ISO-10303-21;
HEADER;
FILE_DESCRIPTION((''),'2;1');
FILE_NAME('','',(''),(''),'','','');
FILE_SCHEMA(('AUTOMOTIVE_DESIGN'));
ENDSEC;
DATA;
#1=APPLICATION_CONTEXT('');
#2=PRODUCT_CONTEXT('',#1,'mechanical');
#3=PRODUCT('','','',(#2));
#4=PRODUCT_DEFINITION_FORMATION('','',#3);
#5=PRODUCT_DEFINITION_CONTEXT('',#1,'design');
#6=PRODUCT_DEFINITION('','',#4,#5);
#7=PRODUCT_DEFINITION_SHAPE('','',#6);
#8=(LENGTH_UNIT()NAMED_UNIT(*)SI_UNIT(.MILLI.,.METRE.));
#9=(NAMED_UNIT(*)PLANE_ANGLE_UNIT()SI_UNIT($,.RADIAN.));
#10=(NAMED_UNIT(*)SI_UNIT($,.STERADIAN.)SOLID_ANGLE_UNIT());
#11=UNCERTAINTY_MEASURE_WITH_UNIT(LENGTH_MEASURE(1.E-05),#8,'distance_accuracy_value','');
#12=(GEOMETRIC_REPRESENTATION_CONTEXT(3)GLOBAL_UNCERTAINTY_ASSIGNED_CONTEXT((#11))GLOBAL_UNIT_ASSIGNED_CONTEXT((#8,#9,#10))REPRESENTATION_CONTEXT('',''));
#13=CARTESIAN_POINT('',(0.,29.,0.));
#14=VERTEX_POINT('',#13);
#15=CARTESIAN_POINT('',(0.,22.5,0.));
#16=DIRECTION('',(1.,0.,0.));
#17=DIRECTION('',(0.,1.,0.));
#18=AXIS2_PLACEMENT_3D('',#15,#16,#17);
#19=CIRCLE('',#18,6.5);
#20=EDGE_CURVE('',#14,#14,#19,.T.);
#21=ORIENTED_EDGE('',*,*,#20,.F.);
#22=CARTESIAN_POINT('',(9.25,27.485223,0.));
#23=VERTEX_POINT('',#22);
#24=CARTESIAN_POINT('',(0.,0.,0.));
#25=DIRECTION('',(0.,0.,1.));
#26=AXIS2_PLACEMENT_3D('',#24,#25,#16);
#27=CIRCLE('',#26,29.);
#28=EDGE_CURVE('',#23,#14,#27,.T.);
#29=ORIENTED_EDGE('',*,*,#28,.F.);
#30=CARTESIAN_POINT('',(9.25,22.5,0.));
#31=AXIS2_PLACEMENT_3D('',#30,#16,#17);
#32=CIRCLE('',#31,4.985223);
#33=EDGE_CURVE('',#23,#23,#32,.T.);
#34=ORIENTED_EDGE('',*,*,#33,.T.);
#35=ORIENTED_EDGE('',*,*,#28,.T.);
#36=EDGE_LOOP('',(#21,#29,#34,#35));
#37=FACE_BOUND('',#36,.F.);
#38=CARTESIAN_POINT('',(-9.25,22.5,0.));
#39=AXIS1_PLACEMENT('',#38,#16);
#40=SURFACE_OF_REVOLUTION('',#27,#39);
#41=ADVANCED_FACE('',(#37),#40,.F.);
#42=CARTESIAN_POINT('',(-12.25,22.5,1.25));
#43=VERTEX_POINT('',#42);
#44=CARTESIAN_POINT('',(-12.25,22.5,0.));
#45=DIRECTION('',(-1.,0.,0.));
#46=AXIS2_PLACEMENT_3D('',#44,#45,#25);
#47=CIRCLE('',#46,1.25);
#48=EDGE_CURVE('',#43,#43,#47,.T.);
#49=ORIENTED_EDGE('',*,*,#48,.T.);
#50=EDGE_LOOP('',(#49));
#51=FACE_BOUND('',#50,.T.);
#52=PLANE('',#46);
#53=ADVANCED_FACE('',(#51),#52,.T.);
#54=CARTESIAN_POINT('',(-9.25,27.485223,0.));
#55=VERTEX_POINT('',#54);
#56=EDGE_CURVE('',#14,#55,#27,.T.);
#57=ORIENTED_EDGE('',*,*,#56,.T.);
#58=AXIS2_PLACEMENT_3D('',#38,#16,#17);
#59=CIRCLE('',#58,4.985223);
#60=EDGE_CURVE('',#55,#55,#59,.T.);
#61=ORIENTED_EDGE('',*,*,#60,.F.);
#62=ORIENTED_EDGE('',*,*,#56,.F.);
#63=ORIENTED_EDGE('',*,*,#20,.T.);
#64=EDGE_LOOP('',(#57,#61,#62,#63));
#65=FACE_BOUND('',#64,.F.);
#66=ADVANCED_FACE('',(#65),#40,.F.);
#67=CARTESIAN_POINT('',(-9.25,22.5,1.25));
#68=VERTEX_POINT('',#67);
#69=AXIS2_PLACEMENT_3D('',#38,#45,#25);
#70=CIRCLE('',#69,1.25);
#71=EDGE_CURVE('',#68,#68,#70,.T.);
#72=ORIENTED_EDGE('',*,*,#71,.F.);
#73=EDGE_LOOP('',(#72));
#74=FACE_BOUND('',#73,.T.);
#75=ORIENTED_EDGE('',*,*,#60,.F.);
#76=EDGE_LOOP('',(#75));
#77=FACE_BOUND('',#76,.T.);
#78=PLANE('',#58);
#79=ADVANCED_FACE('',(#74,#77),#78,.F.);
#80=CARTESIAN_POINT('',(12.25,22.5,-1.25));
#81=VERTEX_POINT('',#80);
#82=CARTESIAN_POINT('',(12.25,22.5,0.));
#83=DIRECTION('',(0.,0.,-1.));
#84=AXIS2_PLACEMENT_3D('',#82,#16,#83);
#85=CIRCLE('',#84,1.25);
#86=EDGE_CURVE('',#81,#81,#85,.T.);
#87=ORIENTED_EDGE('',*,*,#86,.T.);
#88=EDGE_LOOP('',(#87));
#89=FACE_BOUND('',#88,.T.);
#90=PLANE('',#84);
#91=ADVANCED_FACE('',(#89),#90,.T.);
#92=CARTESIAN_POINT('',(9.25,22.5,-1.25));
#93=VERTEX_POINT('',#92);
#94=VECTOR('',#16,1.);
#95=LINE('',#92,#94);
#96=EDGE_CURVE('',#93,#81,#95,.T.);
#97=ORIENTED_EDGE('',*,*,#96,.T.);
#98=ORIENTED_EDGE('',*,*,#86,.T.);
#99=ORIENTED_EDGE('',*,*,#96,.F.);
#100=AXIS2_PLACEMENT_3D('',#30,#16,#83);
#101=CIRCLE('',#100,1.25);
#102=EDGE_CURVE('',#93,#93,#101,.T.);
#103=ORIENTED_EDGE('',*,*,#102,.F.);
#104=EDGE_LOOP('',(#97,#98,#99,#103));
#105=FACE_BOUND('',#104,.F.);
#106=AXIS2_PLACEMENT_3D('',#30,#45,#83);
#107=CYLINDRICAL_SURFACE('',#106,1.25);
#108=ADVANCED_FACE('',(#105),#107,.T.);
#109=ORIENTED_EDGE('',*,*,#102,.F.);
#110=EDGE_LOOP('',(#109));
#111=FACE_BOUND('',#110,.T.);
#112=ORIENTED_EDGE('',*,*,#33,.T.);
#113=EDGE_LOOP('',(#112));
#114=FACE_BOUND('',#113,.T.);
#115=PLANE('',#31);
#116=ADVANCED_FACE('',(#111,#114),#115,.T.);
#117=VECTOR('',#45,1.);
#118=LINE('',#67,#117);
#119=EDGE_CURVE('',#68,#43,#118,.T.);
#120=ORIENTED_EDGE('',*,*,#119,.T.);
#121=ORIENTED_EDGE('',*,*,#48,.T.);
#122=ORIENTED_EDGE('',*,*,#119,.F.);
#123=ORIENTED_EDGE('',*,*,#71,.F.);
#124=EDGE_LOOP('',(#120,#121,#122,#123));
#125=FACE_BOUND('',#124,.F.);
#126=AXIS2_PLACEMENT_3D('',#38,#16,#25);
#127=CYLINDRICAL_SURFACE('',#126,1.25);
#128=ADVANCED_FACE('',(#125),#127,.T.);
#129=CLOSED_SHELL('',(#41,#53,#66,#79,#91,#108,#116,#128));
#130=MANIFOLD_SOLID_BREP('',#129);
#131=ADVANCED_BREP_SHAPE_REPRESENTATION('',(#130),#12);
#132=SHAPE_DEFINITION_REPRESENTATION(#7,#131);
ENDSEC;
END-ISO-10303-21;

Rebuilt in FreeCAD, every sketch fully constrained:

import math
import FreeCAD as App
import Part
import Sketcher
Q = App.Units.Quantity

doc = App.newDocument("Part")
body = doc.addObject("PartDesign::Body", "Body")

sketch1 = body.newObject("Sketcher::SketchObject", "Sketch")
sketch1.AttachmentSupport = (doc.getObject("XY_Plane"), [""])
sketch1.MapMode = "FlatFace"
sketch1.addGeometry([
    Part.LineSegment(App.Vector(9.25, 22.5, 0), App.Vector(9.25, 27.485223, 0)),
    Part.ArcOfCircle(Part.Circle(App.Vector(0, 0, 0), App.Vector(0, 0, 1), 29), math.radians(71.399625), math.radians(108.600375)),
    Part.LineSegment(App.Vector(-9.25, 27.485223, 0), App.Vector(-9.25, 22.5, 0)),
    Part.LineSegment(App.Vector(-9.25, 22.5, 0), App.Vector(9.25, 22.5, 0)),
], False)
sketch1.addGeometry(Part.LineSegment(App.Vector(-9.25, 22.5, 0), App.Vector(9.25, 22.5, 0)), True)
sketch1.addConstraint([
    Sketcher.Constraint("Coincident", 0, 2, 1, 1),
    Sketcher.Constraint("Coincident", 1, 2, 2, 1),
    Sketcher.Constraint("Coincident", 2, 2, 3, 1),
    Sketcher.Constraint("Coincident", 3, 2, 0, 1),
    Sketcher.Constraint("Vertical", 0),
    Sketcher.Constraint("Vertical", 2),
    Sketcher.Constraint("Horizontal", 3),
    Sketcher.Constraint("Horizontal", 4),
    Sketcher.Constraint("Coincident", 1, 3, -1, 1),
    Sketcher.Constraint("Coincident", 4, 1, 2, 2),
    Sketcher.Constraint("Horizontal", 0, 2, 1, 2),
    Sketcher.Constraint("Vertical", 0, 2, 4, 2),
    Sketcher.Constraint("Radius", 1, Q("29 mm")),
    Sketcher.Constraint("DistanceX", 3, 1, 3, 2, Q("18.5 mm")),
    Sketcher.Constraint("DistanceY", -1, 1, 2, 2, Q("22.5 mm")),
])
revolution = body.newObject("PartDesign::Revolution", "Revolution")
revolution.Profile = sketch1
revolution.ReferenceAxis = (sketch1, ["Axis0"])
revolution.Angle = 360

sketch2 = body.newObject("Sketcher::SketchObject", "Sketch001")
sketch2.AttachmentSupport = (doc.getObject("YZ_Plane"), [""])
sketch2.MapMode = "FlatFace"
sketch2.AttachmentOffset = App.Placement(App.Vector(0, 0, -9.25), App.Rotation())
sketch2.addGeometry(Part.Circle(App.Vector(22.5, 0, 0), App.Vector(0, 0, 1), 1.25), False)
sketch2.addConstraint([
    Sketcher.Constraint("PointOnObject", 0, 3, -1),
    Sketcher.Constraint("Diameter", 0, Q("2.5 mm")),
    Sketcher.Constraint("DistanceX", -1, 1, 0, 3, Q("22.5 mm")),
])
pad1 = body.newObject("PartDesign::Pad", "Pad")
pad1.Profile = sketch2
pad1.Length = 3
pad1.Reversed = True

sketch3 = body.newObject("Sketcher::SketchObject", "Sketch002")
sketch3.AttachmentSupport = (doc.getObject("YZ_Plane"), [""])
sketch3.MapMode = "FlatFace"
sketch3.AttachmentOffset = App.Placement(App.Vector(0, 0, 9.25), App.Rotation())
sketch3.addGeometry(Part.Circle(App.Vector(22.5, 0, 0), App.Vector(0, 0, 1), 1.25), False)
sketch3.addConstraint([
    Sketcher.Constraint("PointOnObject", 0, 3, -1),
    Sketcher.Constraint("Diameter", 0, Q("2.5 mm")),
    Sketcher.Constraint("DistanceX", -1, 1, 0, 3, Q("22.5 mm")),
])
pad2 = body.newObject("PartDesign::Pad", "Pad001")
pad2.Profile = sketch3
pad2.Length = 3

doc.recompute()
